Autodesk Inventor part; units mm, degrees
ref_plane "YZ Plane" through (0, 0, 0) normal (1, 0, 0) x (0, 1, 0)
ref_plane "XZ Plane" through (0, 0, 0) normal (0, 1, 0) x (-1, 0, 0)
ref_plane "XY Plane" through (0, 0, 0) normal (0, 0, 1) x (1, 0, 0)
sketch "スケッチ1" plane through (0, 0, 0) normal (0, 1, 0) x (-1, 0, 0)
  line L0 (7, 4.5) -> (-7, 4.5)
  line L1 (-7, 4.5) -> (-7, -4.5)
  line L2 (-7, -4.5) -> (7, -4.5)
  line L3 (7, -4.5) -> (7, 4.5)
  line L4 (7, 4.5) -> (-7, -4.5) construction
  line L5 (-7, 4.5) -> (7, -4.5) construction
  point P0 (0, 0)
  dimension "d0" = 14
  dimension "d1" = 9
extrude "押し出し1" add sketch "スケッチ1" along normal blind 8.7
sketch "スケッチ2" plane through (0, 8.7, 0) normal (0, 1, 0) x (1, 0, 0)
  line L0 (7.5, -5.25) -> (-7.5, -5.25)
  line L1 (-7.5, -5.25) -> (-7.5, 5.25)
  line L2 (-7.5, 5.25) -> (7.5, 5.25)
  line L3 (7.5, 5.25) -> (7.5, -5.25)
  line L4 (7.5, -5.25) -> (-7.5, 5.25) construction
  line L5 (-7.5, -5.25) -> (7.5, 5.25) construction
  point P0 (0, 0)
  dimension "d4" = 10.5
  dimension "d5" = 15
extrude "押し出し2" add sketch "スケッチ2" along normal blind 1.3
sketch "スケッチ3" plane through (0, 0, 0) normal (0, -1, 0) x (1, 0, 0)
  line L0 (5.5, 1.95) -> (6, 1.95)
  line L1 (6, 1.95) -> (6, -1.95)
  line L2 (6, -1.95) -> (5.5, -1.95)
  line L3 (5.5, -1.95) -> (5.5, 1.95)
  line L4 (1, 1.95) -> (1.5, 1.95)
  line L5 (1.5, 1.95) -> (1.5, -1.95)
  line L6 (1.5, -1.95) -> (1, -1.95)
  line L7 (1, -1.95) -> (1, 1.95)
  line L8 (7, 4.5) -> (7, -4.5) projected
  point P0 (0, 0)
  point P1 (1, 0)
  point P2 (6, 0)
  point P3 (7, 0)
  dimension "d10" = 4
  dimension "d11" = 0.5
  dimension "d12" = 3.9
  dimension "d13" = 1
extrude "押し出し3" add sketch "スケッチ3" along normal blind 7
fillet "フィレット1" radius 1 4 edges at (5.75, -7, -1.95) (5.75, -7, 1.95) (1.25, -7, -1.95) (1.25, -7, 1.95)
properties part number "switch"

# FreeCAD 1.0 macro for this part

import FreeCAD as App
import Part
import Sketcher


def edges_at(feature, points):
    """Names of the edges that pass closest to the given points."""
    edges = feature.Shape.Edges
    near = lambda p: min(range(len(edges)), key=lambda i: edges[i].distToShape(Part.Vertex(*p))[0])
    return sorted({f"Edge{near(p) + 1}" for p in points})


def add_polygon(sketch, points):
    """Adds a closed chain of lines whose ends are joined by coincident constraints."""
    first, n = sketch.GeometryCount, len(points)
    for a, b in zip(points, points[1:] + points[:1]):
        sketch.addGeometry(Part.LineSegment(App.Vector(*a, 0), App.Vector(*b, 0)), False)
    for i in range(n):
        sketch.addConstraint(Sketcher.Constraint("Coincident", first + i, 2, first + (i + 1) % n, 1))

doc = App.newDocument("Part")
body = doc.addObject("PartDesign::Body", "Body")

# Sketch on XZ plane
sketch1 = doc.addObject("Sketcher::SketchObject", "Sketch")
body.addObject(sketch1)
sketch1.AttachmentSupport = (doc.XZ_Plane, [""])
sketch1.MapMode = "FlatFace"
add_polygon(sketch1, [(-7, -4), (-7, 4), (7, 4), (7, -4)])  # lines 0-3
sketch1.addConstraint([
    Sketcher.Constraint("Vertical", 0),
    Sketcher.Constraint("Horizontal", 1),
    Sketcher.Constraint("Vertical", 2),
    Sketcher.Constraint("Horizontal", 3),
    Sketcher.Constraint("Symmetric", 0, 2, 2, 2, -1, 1),
    Sketcher.Constraint("DistanceX", 1, 1, 1, 2, 14.0),
    Sketcher.Constraint("DistanceY", 0, 1, 0, 2, 9.0),
])
pad1 = doc.addObject("PartDesign::Pad", "Pad")
body.addObject(pad1)
pad1.Profile = sketch1
pad1.Length = 8.7
pad1.Reversed = True

# Sketch on XZ plane
sketch2 = doc.addObject("Sketcher::SketchObject", "Sketch001")
body.addObject(sketch2)
sketch2.AttachmentSupport = (doc.XZ_Plane, [""])
sketch2.MapMode = "FlatFace"
sketch2.AttachmentOffset = App.Placement(App.Vector(0, 0, -8.7), App.Rotation())
add_polygon(sketch2, [(-8, 5), (8, 5), (8, -5), (-8, -5)])  # lines 0-3
sketch2.addConstraint([
    Sketcher.Constraint("Horizontal", 0),
    Sketcher.Constraint("Vertical", 1),
    Sketcher.Constraint("Horizontal", 2),
    Sketcher.Constraint("Vertical", 3),
    Sketcher.Constraint("Symmetric", 0, 2, 2, 2, -1, 1),
    Sketcher.Constraint("DistanceX", 0, 1, 0, 2, 15.0),
    Sketcher.Constraint("DistanceY", 1, 2, 1, 1, 10.5),
])
pad2 = doc.addObject("PartDesign::Pad", "Pad001")
body.addObject(pad2)
pad2.Profile = sketch2
pad2.Length = 1.3
pad2.Reversed = True

# Sketch on XZ plane
sketch3 = doc.addObject("Sketcher::SketchObject", "Sketch002")
body.addObject(sketch3)
sketch3.AttachmentSupport = (doc.XZ_Plane, [""])
sketch3.MapMode = "FlatFace"
add_polygon(sketch3, [(6, 1.9), (5.5, 1.9), (5.5, -1.9), (6, -1.9)])  # lines 0-3
add_polygon(sketch3, [(1.5, 1.9), (1, 1.9), (1, -1.9), (1.5, -1.9)])  # lines 4-7
sketch3.addConstraint([
    Sketcher.Constraint("Horizontal", 0),
    Sketcher.Constraint("Vertical", 1),
    Sketcher.Constraint("Horizontal", 2),
    Sketcher.Constraint("Vertical", 3),
    Sketcher.Constraint("Horizontal", 4),
    Sketcher.Constraint("Vertical", 5),
    Sketcher.Constraint("Horizontal", 6),
    Sketcher.Constraint("Vertical", 7),
    Sketcher.Constraint("Horizontal", 3, 2, 4, 2),
    Sketcher.Constraint("Horizontal", 2, 2, 5, 2),
    Sketcher.Constraint("Equal", 2, 4),
    Sketcher.Constraint("DistanceX", 0, 2, 0, 1, 0.5),
    Sketcher.Constraint("DistanceY", 1, 2, 1, 1, 3.9),
    Sketcher.Constraint("DistanceX", -1, 1, 4, 2, 1.0),
    Sketcher.Constraint("DistanceX", 6, 2, 1, 2, 4.0),
    Sketcher.Constraint("DistanceY", -1, 1, 0, 2, 1.95),
])
pad3 = doc.addObject("PartDesign::Pad", "Pad002")
body.addObject(pad3)
pad3.Profile = sketch3
pad3.Length = 7
doc.recompute()

fillet = doc.addObject("PartDesign::Fillet", "Fillet")
body.addObject(fillet)
fillet.Base = (pad3, edges_at(pad3, [
    (5.75, -7, -1.95),
    (5.75, -7, 1.95),
    (1.25, -7, -1.95),
    (1.25, -7, 1.95),
]))
fillet.Radius = 1

doc.recompute()
